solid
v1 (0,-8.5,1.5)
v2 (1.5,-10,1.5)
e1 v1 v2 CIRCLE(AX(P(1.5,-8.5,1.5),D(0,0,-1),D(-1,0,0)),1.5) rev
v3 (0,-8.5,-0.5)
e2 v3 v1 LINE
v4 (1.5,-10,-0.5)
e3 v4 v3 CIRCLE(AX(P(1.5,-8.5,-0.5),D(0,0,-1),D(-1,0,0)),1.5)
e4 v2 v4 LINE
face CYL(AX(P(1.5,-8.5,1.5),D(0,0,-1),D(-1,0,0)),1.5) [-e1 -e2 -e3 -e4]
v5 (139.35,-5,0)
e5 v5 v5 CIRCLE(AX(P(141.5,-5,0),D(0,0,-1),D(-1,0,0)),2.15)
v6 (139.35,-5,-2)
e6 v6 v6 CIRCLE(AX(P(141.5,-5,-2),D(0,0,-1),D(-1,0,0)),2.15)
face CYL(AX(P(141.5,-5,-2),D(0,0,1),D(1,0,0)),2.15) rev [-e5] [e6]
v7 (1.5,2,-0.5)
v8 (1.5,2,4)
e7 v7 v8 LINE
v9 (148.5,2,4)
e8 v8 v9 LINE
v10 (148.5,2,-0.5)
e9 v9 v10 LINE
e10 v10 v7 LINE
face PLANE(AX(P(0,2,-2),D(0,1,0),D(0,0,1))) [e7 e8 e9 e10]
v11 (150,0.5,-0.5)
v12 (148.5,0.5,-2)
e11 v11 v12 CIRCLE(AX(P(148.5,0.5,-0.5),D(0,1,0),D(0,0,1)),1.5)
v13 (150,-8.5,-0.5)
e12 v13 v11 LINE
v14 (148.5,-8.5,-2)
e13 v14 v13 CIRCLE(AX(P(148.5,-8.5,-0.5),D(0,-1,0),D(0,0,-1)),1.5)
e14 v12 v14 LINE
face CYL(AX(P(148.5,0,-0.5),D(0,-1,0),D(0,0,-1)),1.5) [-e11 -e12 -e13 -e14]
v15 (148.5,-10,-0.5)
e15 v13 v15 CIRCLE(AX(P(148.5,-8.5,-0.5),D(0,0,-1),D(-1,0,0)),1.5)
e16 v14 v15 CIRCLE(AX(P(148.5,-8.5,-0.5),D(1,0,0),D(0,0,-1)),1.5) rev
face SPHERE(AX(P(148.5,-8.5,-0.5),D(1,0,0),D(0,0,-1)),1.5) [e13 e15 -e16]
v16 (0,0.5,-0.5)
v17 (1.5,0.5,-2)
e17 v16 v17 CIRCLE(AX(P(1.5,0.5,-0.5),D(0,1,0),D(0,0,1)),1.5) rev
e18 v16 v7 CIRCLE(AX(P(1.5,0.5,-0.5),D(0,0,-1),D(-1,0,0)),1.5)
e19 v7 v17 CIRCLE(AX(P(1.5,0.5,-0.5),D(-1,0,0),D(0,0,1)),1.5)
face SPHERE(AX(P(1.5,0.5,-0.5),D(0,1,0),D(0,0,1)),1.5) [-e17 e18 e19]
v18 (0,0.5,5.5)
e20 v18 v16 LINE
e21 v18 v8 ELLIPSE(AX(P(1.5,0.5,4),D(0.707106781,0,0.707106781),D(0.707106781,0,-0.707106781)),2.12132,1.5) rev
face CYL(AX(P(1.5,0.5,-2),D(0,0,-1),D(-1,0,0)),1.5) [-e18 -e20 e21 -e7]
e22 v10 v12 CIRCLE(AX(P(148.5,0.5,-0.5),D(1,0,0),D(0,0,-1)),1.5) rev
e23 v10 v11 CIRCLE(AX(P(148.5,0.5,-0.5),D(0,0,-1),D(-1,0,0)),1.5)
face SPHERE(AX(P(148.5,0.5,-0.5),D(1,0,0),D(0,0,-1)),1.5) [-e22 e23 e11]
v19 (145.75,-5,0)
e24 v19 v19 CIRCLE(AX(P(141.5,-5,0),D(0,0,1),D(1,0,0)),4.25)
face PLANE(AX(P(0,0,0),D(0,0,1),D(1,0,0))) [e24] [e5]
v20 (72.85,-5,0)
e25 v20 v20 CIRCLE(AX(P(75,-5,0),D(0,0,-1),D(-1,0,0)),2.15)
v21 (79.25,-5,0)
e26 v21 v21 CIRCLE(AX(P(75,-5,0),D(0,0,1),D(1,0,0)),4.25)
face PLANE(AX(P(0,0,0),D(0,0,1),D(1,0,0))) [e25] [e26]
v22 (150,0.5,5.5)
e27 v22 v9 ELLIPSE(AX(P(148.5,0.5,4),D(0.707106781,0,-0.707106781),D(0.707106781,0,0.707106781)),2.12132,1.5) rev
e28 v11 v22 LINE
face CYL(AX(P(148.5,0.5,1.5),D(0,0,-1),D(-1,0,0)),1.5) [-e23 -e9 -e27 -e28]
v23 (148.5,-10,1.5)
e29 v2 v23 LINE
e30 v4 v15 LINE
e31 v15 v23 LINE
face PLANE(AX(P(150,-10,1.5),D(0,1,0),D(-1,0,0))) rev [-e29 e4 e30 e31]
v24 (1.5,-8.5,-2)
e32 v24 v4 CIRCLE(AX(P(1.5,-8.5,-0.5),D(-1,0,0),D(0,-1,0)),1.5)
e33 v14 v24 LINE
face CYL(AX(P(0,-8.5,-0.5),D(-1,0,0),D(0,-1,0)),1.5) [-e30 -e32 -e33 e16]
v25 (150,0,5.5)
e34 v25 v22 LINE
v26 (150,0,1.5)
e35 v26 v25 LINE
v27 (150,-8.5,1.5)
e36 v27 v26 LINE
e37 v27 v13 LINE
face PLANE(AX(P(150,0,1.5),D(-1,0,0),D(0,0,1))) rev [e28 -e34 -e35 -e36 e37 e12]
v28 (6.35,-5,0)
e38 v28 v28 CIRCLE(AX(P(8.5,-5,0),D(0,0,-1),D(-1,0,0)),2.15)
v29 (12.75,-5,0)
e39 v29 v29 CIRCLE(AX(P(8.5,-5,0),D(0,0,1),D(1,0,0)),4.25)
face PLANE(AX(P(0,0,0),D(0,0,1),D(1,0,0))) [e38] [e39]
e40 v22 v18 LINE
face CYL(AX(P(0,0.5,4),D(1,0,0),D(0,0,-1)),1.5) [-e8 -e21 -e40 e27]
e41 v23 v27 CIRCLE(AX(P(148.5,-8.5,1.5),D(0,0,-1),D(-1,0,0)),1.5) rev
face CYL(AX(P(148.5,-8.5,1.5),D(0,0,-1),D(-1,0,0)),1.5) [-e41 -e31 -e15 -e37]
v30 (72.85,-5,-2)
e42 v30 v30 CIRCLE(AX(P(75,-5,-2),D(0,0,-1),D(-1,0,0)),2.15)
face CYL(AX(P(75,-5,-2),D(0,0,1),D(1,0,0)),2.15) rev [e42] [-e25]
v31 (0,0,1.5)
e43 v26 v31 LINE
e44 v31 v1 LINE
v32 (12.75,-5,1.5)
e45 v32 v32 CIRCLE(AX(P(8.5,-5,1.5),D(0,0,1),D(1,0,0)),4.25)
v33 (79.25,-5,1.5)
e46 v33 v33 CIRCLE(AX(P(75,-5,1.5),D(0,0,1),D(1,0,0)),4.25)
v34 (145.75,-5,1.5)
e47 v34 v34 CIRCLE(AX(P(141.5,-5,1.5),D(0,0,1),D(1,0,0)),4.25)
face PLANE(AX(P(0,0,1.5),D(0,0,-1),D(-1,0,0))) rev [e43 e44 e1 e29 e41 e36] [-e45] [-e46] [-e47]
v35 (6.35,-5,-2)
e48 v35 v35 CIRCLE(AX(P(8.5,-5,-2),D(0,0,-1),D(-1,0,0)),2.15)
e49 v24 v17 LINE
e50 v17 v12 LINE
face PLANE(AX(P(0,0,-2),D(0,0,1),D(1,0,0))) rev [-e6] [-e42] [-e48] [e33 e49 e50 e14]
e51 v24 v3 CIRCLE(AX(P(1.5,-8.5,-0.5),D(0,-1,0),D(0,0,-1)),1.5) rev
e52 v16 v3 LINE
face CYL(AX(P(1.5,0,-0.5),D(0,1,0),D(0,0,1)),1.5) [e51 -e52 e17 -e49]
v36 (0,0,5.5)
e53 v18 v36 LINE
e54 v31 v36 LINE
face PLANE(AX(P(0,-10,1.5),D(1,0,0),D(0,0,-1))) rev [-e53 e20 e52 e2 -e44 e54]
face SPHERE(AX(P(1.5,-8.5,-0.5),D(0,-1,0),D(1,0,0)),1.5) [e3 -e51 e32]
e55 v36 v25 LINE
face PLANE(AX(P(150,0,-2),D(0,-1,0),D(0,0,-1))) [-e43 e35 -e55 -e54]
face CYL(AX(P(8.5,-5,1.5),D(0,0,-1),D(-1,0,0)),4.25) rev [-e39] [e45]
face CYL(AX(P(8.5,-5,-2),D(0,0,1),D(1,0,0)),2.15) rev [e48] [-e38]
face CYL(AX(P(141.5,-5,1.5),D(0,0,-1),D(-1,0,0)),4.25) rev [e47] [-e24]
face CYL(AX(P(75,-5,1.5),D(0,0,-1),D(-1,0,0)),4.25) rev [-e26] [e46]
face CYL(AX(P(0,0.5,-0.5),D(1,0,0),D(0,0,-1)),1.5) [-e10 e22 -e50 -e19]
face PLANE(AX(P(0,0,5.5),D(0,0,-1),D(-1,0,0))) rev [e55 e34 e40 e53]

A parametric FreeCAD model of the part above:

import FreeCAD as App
import Part
import Sketcher

V = App.Vector
Q = App.Units.Quantity


def edges_at(feature, points):
    """Names of the edges that pass closest to the given points."""
    edges = feature.Shape.Edges
    near = lambda p: min(range(len(edges)), key=lambda i: edges[i].distToShape(Part.Vertex(*p))[0])
    return sorted({f"Edge{near(p) + 1}" for p in points})

doc = App.newDocument("Part")
body = doc.addObject("PartDesign::Body", "Body")

sketch1 = doc.addObject("Sketcher::SketchObject", "Sketch")
body.addObject(sketch1)
sketch1.AttachmentSupport = (doc.XY_Plane, [""])
sketch1.MapMode = "FlatFace"
sketch1.addGeometry([
    Part.LineSegment(V(0, 0, 0), V(0, -10, 0)),
    Part.LineSegment(V(0, -10, 0), V(150, -10, 0)),
    Part.LineSegment(V(150, -10, 0), V(150, 0, 0)),
    Part.LineSegment(V(150, 0, 0), V(0, 0, 0)),
    Part.Circle(V(8.5, -5, 0), V(0, 0, 1), 4.25),
    Part.Circle(V(75, -5, 0), V(0, 0, 1), 4.25),
    Part.Circle(V(141.5, -5, 0), V(0, 0, 1), 4.25),
], False)
sketch1.addConstraint([
    Sketcher.Constraint("Coincident", 0, 2, 1, 1),
    Sketcher.Constraint("Coincident", 1, 2, 2, 1),
    Sketcher.Constraint("Coincident", 2, 2, 3, 1),
    Sketcher.Constraint("Coincident", 3, 2, 0, 1),
    Sketcher.Constraint("Vertical", 0),
    Sketcher.Constraint("Horizontal", 1),
    Sketcher.Constraint("Vertical", 2),
    Sketcher.Constraint("Horizontal", 3),
    Sketcher.Constraint("Coincident", 3, 2, -1, 1),
    Sketcher.Constraint("Equal", 4, 5),
    Sketcher.Constraint("Equal", 5, 6),
    Sketcher.Constraint("Horizontal", 4, 3, 5, 3),
    Sketcher.Constraint("Horizontal", 5, 3, 6, 3),
    Sketcher.Constraint("Diameter", 4, Q("8.5 mm")),
    Sketcher.Constraint("DistanceX", 1, 1, 1, 2, Q("150 mm")),
    Sketcher.Constraint("DistanceY", 0, 2, 0, 1, Q("10 mm")),
    Sketcher.Constraint("DistanceY", 4, 3, -1, 1, Q("5 mm")),
    Sketcher.Constraint("DistanceX", -1, 1, 5, 3, Q("75 mm")),
    Sketcher.Constraint("DistanceX", 4, 3, 6, 3, Q("133 mm")),
    Sketcher.Constraint("DistanceX", -1, 1, 4, 3, Q("8.5 mm")),
])
pad1 = doc.addObject("PartDesign::Pad", "Pad")
body.addObject(pad1)
pad1.Profile = sketch1
pad1.Length = 1.5

sketch2 = doc.addObject("Sketcher::SketchObject", "Sketch001")
body.addObject(sketch2)
sketch2.AttachmentSupport = (doc.XY_Plane, [""])
sketch2.MapMode = "FlatFace"
sketch2.addGeometry([
    Part.LineSegment(V(150, 0, 0), V(150, -10, 0)),
    Part.LineSegment(V(150, -10, 0), V(0, -10, 0)),
    Part.LineSegment(V(0, -10, 0), V(0, 0, 0)),
    Part.LineSegment(V(0, 0, 0), V(150, 0, 0)),
    Part.Circle(V(141.5, -5, 0), V(0, 0, 1), 2.15),
    Part.Circle(V(75, -5, 0), V(0, 0, 1), 2.15),
    Part.Circle(V(8.5, -5, 0), V(0, 0, 1), 2.15),
], False)
sketch2.addConstraint([
    Sketcher.Constraint("Coincident", 0, 2, 1, 1),
    Sketcher.Constraint("Coincident", 1, 2, 2, 1),
    Sketcher.Constraint("Coincident", 2, 2, 3, 1),
    Sketcher.Constraint("Coincident", 3, 2, 0, 1),
    Sketcher.Constraint("Vertical", 0),
    Sketcher.Constraint("Horizontal", 1),
    Sketcher.Constraint("Vertical", 2),
    Sketcher.Constraint("Horizontal", 3),
    Sketcher.Constraint("Coincident", 2, 2, -1, 1),
    Sketcher.Constraint("Equal", 4, 5),
    Sketcher.Constraint("Equal", 5, 6),
    Sketcher.Constraint("Horizontal", 4, 3, 5, 3),
    Sketcher.Constraint("Horizontal", 5, 3, 6, 3),
    Sketcher.Constraint("Diameter", 4, Q("4.3 mm")),
    Sketcher.Constraint("DistanceX", 1, 2, 1, 1, Q("150 mm")),
    Sketcher.Constraint("DistanceY", 0, 2, 0, 1, Q("10 mm")),
    Sketcher.Constraint("DistanceY", 4, 3, -1, 1, Q("5 mm")),
    Sketcher.Constraint("DistanceX", -1, 1, 5, 3, Q("75 mm")),
    Sketcher.Constraint("DistanceX", 6, 3, 4, 3, Q("133 mm")),
    Sketcher.Constraint("DistanceX", -1, 1, 4, 3, Q("141.5 mm")),
])
pad2 = doc.addObject("PartDesign::Pad", "Pad001")
body.addObject(pad2)
pad2.Profile = sketch2
pad2.Length = 2
pad2.Reversed = True

sketch3 = doc.addObject("Sketcher::SketchObject", "Sketch002")
body.addObject(sketch3)
sketch3.AttachmentSupport = (doc.XY_Plane, [""])
sketch3.MapMode = "FlatFace"
sketch3.AttachmentOffset = App.Placement(V(0, 0, 1.5), App.Rotation())
sketch3.addGeometry([
    Part.LineSegment(V(0, 2, 0), V(0, 0, 0)),
    Part.LineSegment(V(0, 0, 0), V(150, 0, 0)),
    Part.LineSegment(V(150, 0, 0), V(150, 2, 0)),
    Part.LineSegment(V(150, 2, 0), V(0, 2, 0)),
], False)
sketch3.addConstraint([
    Sketcher.Constraint("Coincident", 0, 2, 1, 1),
    Sketcher.Constraint("Coincident", 1, 2, 2, 1),
    Sketcher.Constraint("Coincident", 2, 2, 3, 1),
    Sketcher.Constraint("Coincident", 3, 2, 0, 1),
    Sketcher.Constraint("Vertical", 0),
    Sketcher.Constraint("Horizontal", 1),
    Sketcher.Constraint("Vertical", 2),
    Sketcher.Constraint("Horizontal", 3),
    Sketcher.Constraint("Coincident", 0, 2, -1, 1),
    Sketcher.Constraint("DistanceX", 1, 1, 1, 2, Q("150 mm")),
    Sketcher.Constraint("DistanceY", 0, 2, 0, 1, Q("2 mm")),
])
pad3 = doc.addObject("PartDesign::Pad", "Pad002")
body.addObject(pad3)
pad3.Profile = sketch3
pad3.Type = "TwoLengths"
pad3.Length = 4
pad3.Length2 = 3.5
doc.recompute()

fillet = doc.addObject("PartDesign::Fillet", "Fillet")
body.addObject(fillet)
fillet.Base = (pad3, edges_at(pad3, [
    (150, -4, -2),
    (75, -10, -2),
    (0, -4, -2),
    (0, 2, 1.75),
    (75, 2, -2),
    (150, 2, 1.75),
    (75, 2, 5.5),
    (150, -10, -0.25),
    (0, -10, -0.25),
]))
fillet.Radius = 1.5

doc.recompute()
